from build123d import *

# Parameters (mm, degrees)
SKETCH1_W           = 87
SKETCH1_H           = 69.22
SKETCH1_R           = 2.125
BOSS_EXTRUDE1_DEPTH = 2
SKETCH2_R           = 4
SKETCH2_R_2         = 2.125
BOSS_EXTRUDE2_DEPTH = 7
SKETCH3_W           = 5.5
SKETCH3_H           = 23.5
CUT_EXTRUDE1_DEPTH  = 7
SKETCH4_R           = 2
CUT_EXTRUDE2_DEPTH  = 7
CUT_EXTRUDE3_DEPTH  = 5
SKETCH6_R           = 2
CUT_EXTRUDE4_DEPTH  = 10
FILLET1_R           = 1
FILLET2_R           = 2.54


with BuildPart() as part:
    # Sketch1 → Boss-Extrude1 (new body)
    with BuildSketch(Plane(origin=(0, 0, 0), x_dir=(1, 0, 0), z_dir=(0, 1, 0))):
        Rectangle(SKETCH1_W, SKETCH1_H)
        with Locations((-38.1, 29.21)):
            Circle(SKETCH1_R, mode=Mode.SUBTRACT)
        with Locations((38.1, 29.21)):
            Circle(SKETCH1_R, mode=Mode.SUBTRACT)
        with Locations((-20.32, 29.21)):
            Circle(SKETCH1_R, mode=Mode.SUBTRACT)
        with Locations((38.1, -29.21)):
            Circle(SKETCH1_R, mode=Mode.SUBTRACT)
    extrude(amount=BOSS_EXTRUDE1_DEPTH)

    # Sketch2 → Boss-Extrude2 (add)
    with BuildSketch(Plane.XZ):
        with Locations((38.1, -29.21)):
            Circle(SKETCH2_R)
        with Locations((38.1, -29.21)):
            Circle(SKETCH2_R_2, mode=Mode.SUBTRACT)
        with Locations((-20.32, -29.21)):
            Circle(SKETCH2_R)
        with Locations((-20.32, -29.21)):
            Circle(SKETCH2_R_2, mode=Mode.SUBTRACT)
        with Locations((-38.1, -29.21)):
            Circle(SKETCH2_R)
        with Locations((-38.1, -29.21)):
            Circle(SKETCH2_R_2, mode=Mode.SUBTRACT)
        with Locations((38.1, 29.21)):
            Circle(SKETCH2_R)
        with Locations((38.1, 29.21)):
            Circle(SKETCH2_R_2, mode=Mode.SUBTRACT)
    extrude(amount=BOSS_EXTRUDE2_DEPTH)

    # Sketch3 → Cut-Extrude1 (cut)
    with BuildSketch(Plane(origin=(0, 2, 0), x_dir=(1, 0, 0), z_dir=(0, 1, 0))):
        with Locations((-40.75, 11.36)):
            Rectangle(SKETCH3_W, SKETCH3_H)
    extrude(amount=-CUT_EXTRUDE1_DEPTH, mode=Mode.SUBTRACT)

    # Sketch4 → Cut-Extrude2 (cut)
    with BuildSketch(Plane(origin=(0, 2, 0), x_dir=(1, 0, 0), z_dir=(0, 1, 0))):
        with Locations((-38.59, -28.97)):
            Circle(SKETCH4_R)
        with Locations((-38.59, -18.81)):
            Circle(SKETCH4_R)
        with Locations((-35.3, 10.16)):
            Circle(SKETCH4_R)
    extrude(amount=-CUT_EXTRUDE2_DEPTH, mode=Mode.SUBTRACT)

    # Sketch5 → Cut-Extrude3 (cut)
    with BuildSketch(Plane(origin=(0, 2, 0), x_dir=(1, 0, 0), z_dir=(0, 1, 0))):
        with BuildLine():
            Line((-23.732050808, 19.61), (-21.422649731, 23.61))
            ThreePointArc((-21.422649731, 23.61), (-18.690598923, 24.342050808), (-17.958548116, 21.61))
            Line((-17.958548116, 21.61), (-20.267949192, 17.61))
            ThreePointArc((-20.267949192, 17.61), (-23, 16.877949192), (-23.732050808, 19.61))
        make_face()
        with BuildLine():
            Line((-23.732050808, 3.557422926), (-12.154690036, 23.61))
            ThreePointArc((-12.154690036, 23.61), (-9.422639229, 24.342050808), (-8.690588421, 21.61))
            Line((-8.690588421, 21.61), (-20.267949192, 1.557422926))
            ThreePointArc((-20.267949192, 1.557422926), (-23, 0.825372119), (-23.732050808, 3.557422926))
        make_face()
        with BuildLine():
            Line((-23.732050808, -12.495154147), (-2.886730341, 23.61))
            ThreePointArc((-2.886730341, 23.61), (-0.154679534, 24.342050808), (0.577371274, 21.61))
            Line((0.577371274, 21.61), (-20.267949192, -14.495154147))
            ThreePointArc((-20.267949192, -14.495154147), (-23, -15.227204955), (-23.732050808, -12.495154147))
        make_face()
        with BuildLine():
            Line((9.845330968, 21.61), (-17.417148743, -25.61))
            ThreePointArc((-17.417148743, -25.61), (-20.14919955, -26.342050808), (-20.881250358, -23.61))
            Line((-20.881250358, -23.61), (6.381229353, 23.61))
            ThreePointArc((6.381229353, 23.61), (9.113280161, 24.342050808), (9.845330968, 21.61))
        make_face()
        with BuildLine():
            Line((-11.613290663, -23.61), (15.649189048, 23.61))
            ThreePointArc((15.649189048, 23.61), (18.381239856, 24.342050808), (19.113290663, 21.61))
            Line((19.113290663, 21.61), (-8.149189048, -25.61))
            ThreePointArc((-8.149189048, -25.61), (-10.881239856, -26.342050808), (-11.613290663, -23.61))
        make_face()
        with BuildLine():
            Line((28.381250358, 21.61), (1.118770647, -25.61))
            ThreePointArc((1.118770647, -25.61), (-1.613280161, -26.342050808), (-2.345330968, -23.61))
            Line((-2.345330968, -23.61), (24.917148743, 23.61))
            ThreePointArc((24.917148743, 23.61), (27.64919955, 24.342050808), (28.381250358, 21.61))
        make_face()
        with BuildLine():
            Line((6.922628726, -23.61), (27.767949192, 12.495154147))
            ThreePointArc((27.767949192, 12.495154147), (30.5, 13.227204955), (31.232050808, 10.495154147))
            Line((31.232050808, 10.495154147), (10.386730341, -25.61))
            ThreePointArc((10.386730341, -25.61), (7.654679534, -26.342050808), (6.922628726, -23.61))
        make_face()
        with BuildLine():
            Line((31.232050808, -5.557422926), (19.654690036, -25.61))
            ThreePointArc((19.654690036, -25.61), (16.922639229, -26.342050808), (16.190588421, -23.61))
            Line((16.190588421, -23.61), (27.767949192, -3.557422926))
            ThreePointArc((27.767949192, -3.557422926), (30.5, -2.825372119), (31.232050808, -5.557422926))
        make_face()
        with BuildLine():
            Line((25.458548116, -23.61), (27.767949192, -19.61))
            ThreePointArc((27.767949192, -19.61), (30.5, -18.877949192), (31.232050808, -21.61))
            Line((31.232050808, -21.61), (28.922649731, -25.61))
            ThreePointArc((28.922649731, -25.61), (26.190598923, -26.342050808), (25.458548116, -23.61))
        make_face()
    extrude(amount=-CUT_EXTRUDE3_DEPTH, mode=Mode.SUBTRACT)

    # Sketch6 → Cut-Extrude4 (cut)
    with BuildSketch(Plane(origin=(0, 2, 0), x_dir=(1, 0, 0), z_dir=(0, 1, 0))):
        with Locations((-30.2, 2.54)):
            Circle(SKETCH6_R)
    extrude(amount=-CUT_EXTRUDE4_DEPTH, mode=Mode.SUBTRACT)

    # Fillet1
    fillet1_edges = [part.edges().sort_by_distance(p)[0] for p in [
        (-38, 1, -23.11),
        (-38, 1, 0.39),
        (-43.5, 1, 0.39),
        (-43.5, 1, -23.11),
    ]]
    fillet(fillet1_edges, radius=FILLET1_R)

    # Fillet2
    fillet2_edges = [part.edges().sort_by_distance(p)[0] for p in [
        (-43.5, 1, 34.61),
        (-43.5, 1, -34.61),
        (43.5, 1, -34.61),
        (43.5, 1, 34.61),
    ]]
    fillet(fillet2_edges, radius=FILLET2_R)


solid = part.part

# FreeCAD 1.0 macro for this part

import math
import FreeCAD as App
import Part
import Sketcher
Q = App.Units.Quantity


def edges_at(feature, points):
    """Names of the edges that pass closest to the given points."""
    edges = feature.Shape.Edges
    near = lambda p: min(range(len(edges)), key=lambda i: edges[i].distToShape(Part.Vertex(*p))[0])
    return sorted({f"Edge{near(p) + 1}" for p in points})


def add_polygon(sketch, points):
    """Adds a closed chain of lines whose ends are joined by coincident constraints."""
    first, n = sketch.GeometryCount, len(points)
    for a, b in zip(points, points[1:] + points[:1]):
        sketch.addGeometry(Part.LineSegment(App.Vector(*a, 0), App.Vector(*b, 0)), False)
    for i in range(n):
        sketch.addConstraint(Sketcher.Constraint("Coincident", first + i, 2, first + (i + 1) % n, 1))

doc = App.newDocument("Part")
body = doc.addObject("PartDesign::Body", "Body")

sketch1 = body.newObject("Sketcher::SketchObject", "Sketch")
sketch1.AttachmentSupport = (doc.getObject("XZ_Plane"), [""])
sketch1.MapMode = "FlatFace"
add_polygon(sketch1, [(-43.5, -34.6), (-43.5, 34.6), (43.5, 34.6), (43.5, -34.6)])
sketch1.addGeometry(Part.Circle(App.Vector(38.1, 29.2, 0), App.Vector(0, 0, 1), 2.1), False)
sketch1.addGeometry(Part.Circle(App.Vector(-38.1, -29.2, 0), App.Vector(0, 0, 1), 2.1), False)
sketch1.addGeometry(Part.Circle(App.Vector(-20.3, -29.2, 0), App.Vector(0, 0, 1), 2.1), False)
sketch1.addGeometry(Part.Circle(App.Vector(38.1, -29.2, 0), App.Vector(0, 0, 1), 2.1), False)
sketch1.addConstraint(Sketcher.Constraint("Vertical", 0))
sketch1.addConstraint(Sketcher.Constraint("Horizontal", 1))
sketch1.addConstraint(Sketcher.Constraint("Vertical", 2))
sketch1.addConstraint(Sketcher.Constraint("Horizontal", 3))
sketch1.addConstraint(Sketcher.Constraint("Equal", 4, 5))
sketch1.addConstraint(Sketcher.Constraint("Equal", 5, 6))
sketch1.addConstraint(Sketcher.Constraint("Equal", 6, 7))
sketch1.addConstraint(Sketcher.Constraint("Symmetric", 4, 3, 5, 3, -1, 1))
sketch1.addConstraint(Sketcher.Constraint("Symmetric", 0, 2, 2, 2, -1, 1))
sketch1.addConstraint(Sketcher.Constraint("Symmetric", 5, 3, 7, 3, -2))
sketch1.addConstraint(Sketcher.Constraint("Horizontal", 5, 3, 6, 3))
sketch1.addConstraint(Sketcher.Constraint("Diameter", 4, Q("4.25 mm")))
sketch1.addConstraint(Sketcher.Constraint("DistanceX", 1, 1, 1, 2, Q("87 mm")))
sketch1.addConstraint(Sketcher.Constraint("DistanceY", 0, 1, 0, 2, Q("69.22 mm")))
sketch1.addConstraint(Sketcher.Constraint("DistanceX", -1, 1, 4, 3, Q("38.1 mm")))
sketch1.addConstraint(Sketcher.Constraint("DistanceY", 4, 3, 0, 2, Q("5.4 mm")))
sketch1.addConstraint(Sketcher.Constraint("DistanceX", 6, 3, -1, 1, Q("20.32 mm")))
pad1 = body.newObject("PartDesign::Pad", "Pad")
pad1.Profile = sketch1
pad1.Length = 2
pad1.Reversed = True

sketch2 = body.newObject("Sketcher::SketchObject", "Sketch001")
sketch2.AttachmentSupport = (doc.getObject("XZ_Plane"), [""])
sketch2.MapMode = "FlatFace"
sketch2.addGeometry(Part.Circle(App.Vector(38.1, -29.2, 0), App.Vector(0, 0, 1), 4), False)
sketch2.addGeometry(Part.Circle(App.Vector(38.1, -29.2, 0), App.Vector(0, 0, 1), 2.1), False)
sketch2.addGeometry(Part.Circle(App.Vector(-20.3, -29.2, 0), App.Vector(0, 0, 1), 4), False)
sketch2.addGeometry(Part.Circle(App.Vector(-20.3, -29.2, 0), App.Vector(0, 0, 1), 2.1), False)
sketch2.addGeometry(Part.Circle(App.Vector(-38.1, -29.2, 0), App.Vector(0, 0, 1), 4), False)
sketch2.addGeometry(Part.Circle(App.Vector(-38.1, -29.2, 0), App.Vector(0, 0, 1), 2.1), False)
sketch2.addGeometry(Part.Circle(App.Vector(38.1, 29.2, 0), App.Vector(0, 0, 1), 4), False)
sketch2.addGeometry(Part.Circle(App.Vector(38.1, 29.2, 0), App.Vector(0, 0, 1), 2.1), False)
sketch2.addConstraint(Sketcher.Constraint("Coincident", 1, 3, 0, 3))
sketch2.addConstraint(Sketcher.Constraint("Coincident", 3, 3, 2, 3))
sketch2.addConstraint(Sketcher.Constraint("Coincident", 5, 3, 4, 3))
sketch2.addConstraint(Sketcher.Constraint("Coincident", 7, 3, 6, 3))
sketch2.addConstraint(Sketcher.Constraint("Equal", 0, 2))
sketch2.addConstraint(Sketcher.Constraint("Equal", 1, 3))
sketch2.addConstraint(Sketcher.Constraint("Equal", 2, 4))
sketch2.addConstraint(Sketcher.Constraint("Equal", 3, 5))
sketch2.addConstraint(Sketcher.Constraint("Equal", 4, 6))
sketch2.addConstraint(Sketcher.Constraint("Equal", 5, 7))
sketch2.addConstraint(Sketcher.Constraint("Symmetric", 4, 3, 6, 3, -1, 1))
sketch2.addConstraint(Sketcher.Constraint("Symmetric", 0, 3, 4, 3, -2))
sketch2.addConstraint(Sketcher.Constraint("Horizontal", 1, 3, 2, 3))
sketch2.addConstraint(Sketcher.Constraint("Diameter", 0, Q("8 mm")))
sketch2.addConstraint(Sketcher.Constraint("Diameter", 1, Q("4.25 mm")))
sketch2.addConstraint(Sketcher.Constraint("DistanceX", -1, 1, 0, 3, Q("38.1 mm")))
sketch2.addConstraint(Sketcher.Constraint("DistanceY", 0, 3, -1, 1, Q("29.21 mm")))
sketch2.addConstraint(Sketcher.Constraint("DistanceX", 2, 3, -1, 1, Q("20.32 mm")))
pad2 = body.newObject("PartDesign::Pad", "Pad001")
pad2.Profile = sketch2
pad2.Length = 7

sketch3 = body.newObject("Sketcher::SketchObject", "Sketch002")
sketch3.AttachmentSupport = (doc.getObject("XZ_Plane"), [""])
sketch3.MapMode = "FlatFace"
sketch3.AttachmentOffset = App.Placement(App.Vector(0, 0, -2), App.Rotation())
add_polygon(sketch3, [(-44, -23), (-44, 0), (-38, 0), (-38, -23)])
sketch3.addConstraint(Sketcher.Constraint("Vertical", 0))
sketch3.addConstraint(Sketcher.Constraint("Horizontal", 1))
sketch3.addConstraint(Sketcher.Constraint("Vertical", 2))
sketch3.addConstraint(Sketcher.Constraint("Horizontal", 3))
sketch3.addConstraint(Sketcher.Constraint("DistanceX", 1, 1, 1, 2, Q("5.5 mm")))
sketch3.addConstraint(Sketcher.Constraint("DistanceY", 0, 1, 0, 2, Q("23.5 mm")))
sketch3.addConstraint(Sketcher.Constraint("DistanceX", 1, 2, -1, 1, Q("38 mm")))
sketch3.addConstraint(Sketcher.Constraint("DistanceY", -1, 1, 0, 2, Q("0.39 mm")))
pocket1 = body.newObject("PartDesign::Pocket", "Pocket")
pocket1.Profile = sketch3
pocket1.Length = 7
pocket1.Reversed = True

sketch4 = body.newObject("Sketcher::SketchObject", "Sketch003")
sketch4.AttachmentSupport = (doc.getObject("XZ_Plane"), [""])
sketch4.MapMode = "FlatFace"
sketch4.AttachmentOffset = App.Placement(App.Vector(0, 0, -2), App.Rotation())
sketch4.addGeometry(Part.Circle(App.Vector(-38.6, 29, 0), App.Vector(0, 0, 1), 2), False)
sketch4.addGeometry(Part.Circle(App.Vector(-38.6, 18.8, 0), App.Vector(0, 0, 1), 2), False)
sketch4.addGeometry(Part.Circle(App.Vector(-35.3, -10.2, 0), App.Vector(0, 0, 1), 2), False)
sketch4.addConstraint(Sketcher.Constraint("Equal", 0, 1))
sketch4.addConstraint(Sketcher.Constraint("Equal", 1, 2))
sketch4.addConstraint(Sketcher.Constraint("Vertical", 0, 3, 1, 3))
sketch4.addConstraint(Sketcher.Constraint("Diameter", 0, Q("4 mm")))
sketch4.addConstraint(Sketcher.Constraint("DistanceX", 2, 3, -1, 1, Q("35.3 mm")))
sketch4.addConstraint(Sketcher.Constraint("DistanceX", 0, 3, -1, 1, Q("38.59 mm")))
sketch4.addConstraint(Sketcher.Constraint("DistanceY", -1, 1, 0, 3, Q("28.97 mm")))
sketch4.addConstraint(Sketcher.Constraint("DistanceY", -1, 1, 1, 3, Q("18.81 mm")))
sketch4.addConstraint(Sketcher.Constraint("DistanceY", 2, 3, -1, 1, Q("10.16 mm")))
pocket2 = body.newObject("PartDesign::Pocket", "Pocket001")
pocket2.Profile = sketch4
pocket2.Length = 7
pocket2.Reversed = True

sketch5 = body.newObject("Sketcher::SketchObject", "Sketch004")
sketch5.AttachmentSupport = (doc.getObject("XZ_Plane"), [""])
sketch5.MapMode = "FlatFace"
sketch5.AttachmentOffset = App.Placement(App.Vector(0, 0, -2), App.Rotation())
sketch5.addGeometry(Part.LineSegment(App.Vector(-21.4, -23.6, 0), App.Vector(-23.7, -19.6, 0)), False)
sketch5.addGeometry(Part.ArcOfCircle(Part.Circle(App.Vector(-22, -18.6, 0), App.Vector(0, 0, 1), 2), math.radians(30), math.radians(210)), False)
sketch5.addGeometry(Part.LineSegment(App.Vector(-20.3, -17.6, 0), App.Vector(-18, -21.6, 0)), False)
sketch5.addGeometry(Part.ArcOfCircle(Part.Circle(App.Vector(-19.7, -22.6, 0), App.Vector(0, 0, 1), 2), math.radians(-150), math.radians(30)), False)
sketch5.addGeometry(Part.LineSegment(App.Vector(-12.2, -23.6, 0), App.Vector(-23.7, -3.6, 0)), False)
sketch5.addGeometry(Part.ArcOfCircle(Part.Circle(App.Vector(-22, -2.6, 0), App.Vector(0, 0, 1), 2), math.radians(30), math.radians(210)), False)
sketch5.addGeometry(Part.LineSegment(App.Vector(-20.3, -1.6, 0), App.Vector(-8.7, -21.6, 0)), False)
sketch5.addGeometry(Part.ArcOfCircle(Part.Circle(App.Vector(-10.4, -22.6, 0), App.Vector(0, 0, 1), 2), math.radians(-150), math.radians(30)), False)
sketch5.addGeometry(Part.LineSegment(App.Vector(-2.9, -23.6, 0), App.Vector(-23.7, 12.5, 0)), False)
sketch5.addGeometry(Part.ArcOfCircle(Part.Circle(App.Vector(-22, 13.5, 0), App.Vector(0, 0, 1), 2), math.radians(30), math.radians(210)), False)
sketch5.addGeometry(Part.LineSegment(App.Vector(-20.3, 14.5, 0), App.Vector(0.6, -21.6, 0)), False)
sketch5.addGeometry(Part.ArcOfCircle(Part.Circle(App.Vector(-1.2, -22.6, 0), App.Vector(0, 0, 1), 2), math.radians(-150), math.radians(30)), False)
sketch5.addGeometry(Part.LineSegment(App.Vector(-17.4, 25.6, 0), App.Vector(9.8, -21.6, 0)), False)
sketch5.addGeometry(Part.ArcOfCircle(Part.Circle(App.Vector(8.1, -22.6, 0), App.Vector(0, 0, 1), 2), math.radians(-150), math.radians(30)), False)
sketch5.addGeometry(Part.LineSegment(App.Vector(6.4, -23.6, 0), App.Vector(-20.9, 23.6, 0)), False)
sketch5.addGeometry(Part.ArcOfCircle(Part.Circle(App.Vector(-19.1, 24.6, 0), App.Vector(0, 0, 1), 2), math.radians(30), math.radians(210)), False)
sketch5.addGeometry(Part.LineSegment(App.Vector(15.6, -23.6, 0), App.Vector(-11.6, 23.6, 0)), False)
sketch5.addGeometry(Part.ArcOfCircle(Part.Circle(App.Vector(-9.9, 24.6, 0), App.Vector(0, 0, 1), 2), math.radians(30), math.radians(210)), False)
sketch5.addGeometry(Part.LineSegment(App.Vector(-8.1, 25.6, 0), App.Vector(19.1, -21.6, 0)), False)
sketch5.addGeometry(Part.ArcOfCircle(Part.Circle(App.Vector(17.4, -22.6, 0), App.Vector(0, 0, 1), 2), math.radians(-150), math.radians(30)), False)
sketch5.addGeometry(Part.LineSegment(App.Vector(1.1, 25.6, 0), App.Vector(28.4, -21.6, 0)), False)
sketch5.addGeometry(Part.ArcOfCircle(Part.Circle(App.Vector(26.6, -22.6, 0), App.Vector(0, 0, 1), 2), math.radians(-150), math.radians(30)), False)
sketch5.addGeometry(Part.LineSegment(App.Vector(24.9, -23.6, 0), App.Vector(-2.3, 23.6, 0)), False)
sketch5.addGeometry(Part.ArcOfCircle(Part.Circle(App.Vector(-0.6, 24.6, 0), App.Vector(0, 0, 1), 2), math.radians(30), math.radians(210)), False)
sketch5.addGeometry(Part.LineSegment(App.Vector(27.8, -12.5, 0), App.Vector(6.9, 23.6, 0)), False)
sketch5.addGeometry(Part.ArcOfCircle(Part.Circle(App.Vector(8.7, 24.6, 0), App.Vector(0, 0, 1), 2), math.radians(30), math.radians(210)), False)
sketch5.addGeometry(Part.LineSegment(App.Vector(10.4, 25.6, 0), App.Vector(31.2, -10.5, 0)), False)
sketch5.addGeometry(Part.ArcOfCircle(Part.Circle(App.Vector(29.5, -11.5, 0), App.Vector(0, 0, 1), 2), math.radians(-150), math.radians(30)), False)
sketch5.addGeometry(Part.LineSegment(App.Vector(19.7, 25.6, 0), App.Vector(31.2, 5.6, 0)), False)
sketch5.addGeometry(Part.ArcOfCircle(Part.Circle(App.Vector(29.5, 4.6, 0), App.Vector(0, 0, 1), 2), math.radians(-150), math.radians(30)), False)
sketch5.addGeometry(Part.LineSegment(App.Vector(27.8, 3.6, 0), App.Vector(16.2, 23.6, 0)), False)
sketch5.addGeometry(Part.ArcOfCircle(Part.Circle(App.Vector(17.9, 24.6, 0), App.Vector(0, 0, 1), 2), math.radians(30), math.radians(210)), False)
sketch5.addGeometry(Part.LineSegment(App.Vector(27.8, 19.6, 0), App.Vector(25.5, 23.6, 0)), False)
sketch5.addGeometry(Part.ArcOfCircle(Part.Circle(App.Vector(27.2, 24.6, 0), App.Vector(0, 0, 1), 2), math.radians(30), math.radians(210)), False)
sketch5.addGeometry(Part.LineSegment(App.Vector(28.9, 25.6, 0), App.Vector(31.2, 21.6, 0)), False)
sketch5.addGeometry(Part.ArcOfCircle(Part.Circle(App.Vector(29.5, 20.6, 0), App.Vector(0, 0, 1), 2), math.radians(-150), math.radians(30)), False)
sketch5.addConstraint(Sketcher.Constraint("Tangent", 0, 2, 1, 2))
sketch5.addConstraint(Sketcher.Constraint("Tangent", 1, 1, 2, 1))
sketch5.addConstraint(Sketcher.Constraint("Tangent", 2, 2, 3, 2))
sketch5.addConstraint(Sketcher.Constraint("Tangent", 3, 1, 0, 1))
sketch5.addConstraint(Sketcher.Constraint("Tangent", 4, 2, 5, 2))
sketch5.addConstraint(Sketcher.Constraint("Tangent", 5, 1, 6, 1))
sketch5.addConstraint(Sketcher.Constraint("Tangent", 6, 2, 7, 2))
sketch5.addConstraint(Sketcher.Constraint("Tangent", 7, 1, 4, 1))
sketch5.addConstraint(Sketcher.Constraint("Tangent", 8, 2, 9, 2))
sketch5.addConstraint(Sketcher.Constraint("Tangent", 9, 1, 10, 1))
sketch5.addConstraint(Sketcher.Constraint("Tangent", 10, 2, 11, 2))
sketch5.addConstraint(Sketcher.Constraint("Tangent", 11, 1, 8, 1))
sketch5.addConstraint(Sketcher.Constraint("Tangent", 12, 2, 13, 2))
sketch5.addConstraint(Sketcher.Constraint("Tangent", 13, 1, 14, 1))
sketch5.addConstraint(Sketcher.Constraint("Tangent", 14, 2, 15, 2))
sketch5.addConstraint(Sketcher.Constraint("Tangent", 15, 1, 12, 1))
sketch5.addConstraint(Sketcher.Constraint("Tangent", 16, 2, 17, 2))
sketch5.addConstraint(Sketcher.Constraint("Tangent", 17, 1, 18, 1))
sketch5.addConstraint(Sketcher.Constraint("Tangent", 18, 2, 19, 2))
sketch5.addConstraint(Sketcher.Constraint("Tangent", 19, 1, 16, 1))
sketch5.addConstraint(Sketcher.Constraint("Tangent", 20, 2, 21, 2))
sketch5.addConstraint(Sketcher.Constraint("Tangent", 21, 1, 22, 1))
sketch5.addConstraint(Sketcher.Constraint("Tangent", 22, 2, 23, 2))
sketch5.addConstraint(Sketcher.Constraint("Tangent", 23, 1, 20, 1))
sketch5.addConstraint(Sketcher.Constraint("Tangent", 24, 2, 25, 2))
sketch5.addConstraint(Sketcher.Constraint("Tangent", 25, 1, 26, 1))
sketch5.addConstraint(Sketcher.Constraint("Tangent", 26, 2, 27, 2))
sketch5.addConstraint(Sketcher.Constraint("Tangent", 27, 1, 24, 1))
sketch5.addConstraint(Sketcher.Constraint("Tangent", 28, 2, 29, 2))
sketch5.addConstraint(Sketcher.Constraint("Tangent", 29, 1, 30, 1))
sketch5.addConstraint(Sketcher.Constraint("Tangent", 30, 2, 31, 2))
sketch5.addConstraint(Sketcher.Constraint("Tangent", 31, 1, 28, 1))
sketch5.addConstraint(Sketcher.Constraint("Tangent", 32, 2, 33, 2))
sketch5.addConstraint(Sketcher.Constraint("Tangent", 33, 1, 34, 1))
sketch5.addConstraint(Sketcher.Constraint("Tangent", 34, 2, 35, 2))
sketch5.addConstraint(Sketcher.Constraint("Tangent", 35, 1, 32, 1))
sketch5.addConstraint(Sketcher.Constraint("Equal", 1, 3))
sketch5.addConstraint(Sketcher.Constraint("Equal", 3, 5))
sketch5.addConstraint(Sketcher.Constraint("Equal", 5, 7))
sketch5.addConstraint(Sketcher.Constraint("Equal", 7, 9))
sketch5.addConstraint(Sketcher.Constraint("Equal", 9, 11))
sketch5.addConstraint(Sketcher.Constraint("Equal", 11, 13))
sketch5.addConstraint(Sketcher.Constraint("Equal", 13, 15))
sketch5.addConstraint(Sketcher.Constraint("Equal", 15, 17))
sketch5.addConstraint(Sketcher.Constraint("Equal", 17, 19))
sketch5.addConstraint(Sketcher.Constraint("Equal", 19, 21))
sketch5.addConstraint(Sketcher.Constraint("Equal", 21, 23))
sketch5.addConstraint(Sketcher.Constraint("Equal", 23, 25))
sketch5.addConstraint(Sketcher.Constraint("Equal", 25, 27))
sketch5.addConstraint(Sketcher.Constraint("Equal", 27, 29))
sketch5.addConstraint(Sketcher.Constraint("Equal", 29, 31))
sketch5.addConstraint(Sketcher.Constraint("Equal", 31, 33))
sketch5.addConstraint(Sketcher.Constraint("Equal", 33, 35))
sketch5.addConstraint(Sketcher.Constraint("Parallel", 2, 4))
sketch5.addConstraint(Sketcher.Constraint("Parallel", 6, 8))
sketch5.addConstraint(Sketcher.Constraint("Parallel", 10, 12))
sketch5.addConstraint(Sketcher.Constraint("Parallel", 14, 16))
sketch5.addConstraint(Sketcher.Constraint("Parallel", 18, 20))
sketch5.addConstraint(Sketcher.Constraint("Parallel", 22, 24))
sketch5.addConstraint(Sketcher.Constraint("Parallel", 26, 28))
sketch5.addConstraint(Sketcher.Constraint("Parallel", 30, 32))
sketch5.addConstraint(Sketcher.Constraint("Horizontal", 3, 3, 7, 3))
sketch5.addConstraint(Sketcher.Constraint("Horizontal", 7, 3, 11, 3))
sketch5.addConstraint(Sketcher.Constraint("Horizontal", 11, 3, 13, 3))
sketch5.addConstraint(Sketcher.Constraint("Horizontal", 15, 3, 17, 3))
sketch5.addConstraint(Sketcher.Constraint("Horizontal", 13, 3, 19, 3))
sketch5.addConstraint(Sketcher.Constraint("Horizontal", 19, 3, 21, 3))
sketch5.addConstraint(Sketcher.Constraint("Horizontal", 17, 3, 23, 3))
sketch5.addConstraint(Sketcher.Constraint("Horizontal", 23, 3, 25, 3))
sketch5.addConstraint(Sketcher.Constraint("Horizontal", 25, 3, 31, 3))
sketch5.addConstraint(Sketcher.Constraint("Horizontal", 31, 3, 33, 3))
sketch5.addConstraint(Sketcher.Constraint("Vertical", 1, 3, 5, 3))
sketch5.addConstraint(Sketcher.Constraint("Vertical", 5, 3, 9, 3))
sketch5.addConstraint(Sketcher.Constraint("Vertical", 27, 3, 29, 3))
sketch5.addConstraint(Sketcher.Constraint("Vertical", 29, 3, 35, 3))
sketch5.addConstraint(Sketcher.Constraint("Equal", 10, 24))
sketch5.addConstraint(Sketcher.Constraint("Equal", 6, 28))
sketch5.addConstraint(Sketcher.Constraint("Equal", 2, 32))
sketch5.addConstraint(Sketcher.Constraint("Radius", 1, Q("2 mm")))
sketch5.addConstraint(Sketcher.Constraint("Angle", 0, Q("120 deg")))
sketch5.addConstraint(Sketcher.Constraint("DistanceX", 1, 3, -1, 1, Q("22 mm")))
sketch5.addConstraint(Sketcher.Constraint("DistanceY", 3, 3, 1, 3, Q("4 mm")))
sketch5.addConstraint(Sketcher.Constraint("DistanceX", -1, 1, 27, 3, Q("29.5 mm")))
sketch5.addConstraint(Sketcher.Constraint("DistanceY", 1, 3, -1, 1, Q("18.61 mm")))
sketch5.addConstraint(Sketcher.Constraint("DistanceY", -1, 1, 15, 3, Q("24.61 mm")))
sketch5.addConstraint(Sketcher.Constraint("DistanceX", 15, 3, -1, 1, Q("19.1492 mm")))
sketch5.addConstraint(Sketcher.Constraint("DistanceX", -1, 1, 21, 3, Q("26.6492 mm")))
sketch5.addConstraint(Sketcher.Constraint("DistanceX", 7, 3, 17, 3, Q("0.541399 mm")))
sketch5.addConstraint(Sketcher.Constraint("DistanceX", 11, 3, 23, 3, Q("0.541399 mm")))
sketch5.addConstraint(Sketcher.Constraint("Distance", 4, Q("23.154722 mm")))
pocket3 = body.newObject("PartDesign::Pocket", "Pocket002")
pocket3.Profile = sketch5
pocket3.Length = 5
pocket3.Reversed = True

sketch6 = body.newObject("Sketcher::SketchObject", "Sketch005")
sketch6.AttachmentSupport = (doc.getObject("XZ_Plane"), [""])
sketch6.MapMode = "FlatFace"
sketch6.AttachmentOffset = App.Placement(App.Vector(0, 0, -2), App.Rotation())
sketch6.addGeometry(Part.Circle(App.Vector(-30.2, -2.5, 0), App.Vector(0, 0, 1), 2), False)
sketch6.addConstraint(Sketcher.Constraint("Diameter", 0, Q("4 mm")))
sketch6.addConstraint(Sketcher.Constraint("DistanceX", 0, 3, -1, 1, Q("30.2 mm")))
sketch6.addConstraint(Sketcher.Constraint("DistanceY", 0, 3, -1, 1, Q("2.54 mm")))
pocket4 = body.newObject("PartDesign::Pocket", "Pocket003")
pocket4.Profile = sketch6
pocket4.Length = 10
pocket4.Reversed = True
doc.recompute()

fillet = body.newObject("PartDesign::Fillet", "Fillet")
fillet.Base = (pocket4, edges_at(pocket4, [
    (-38, 1, -23.11),
    (-38, 1, 0.39),
    (-43.5, 1, 0.39),
    (-43.5, 1, -23.11),
]))
fillet.Radius = 1
doc.recompute()

fillet2 = body.newObject("PartDesign::Fillet", "Fillet001")
fillet2.Base = (fillet, edges_at(fillet, [
    (-43.5, 1, 34.61),
    (-43.5, 1, -34.61),
    (43.5, 1, -34.61),
    (43.5, 1, 34.61),
]))
fillet2.Radius = 2.54

doc.recompute()
